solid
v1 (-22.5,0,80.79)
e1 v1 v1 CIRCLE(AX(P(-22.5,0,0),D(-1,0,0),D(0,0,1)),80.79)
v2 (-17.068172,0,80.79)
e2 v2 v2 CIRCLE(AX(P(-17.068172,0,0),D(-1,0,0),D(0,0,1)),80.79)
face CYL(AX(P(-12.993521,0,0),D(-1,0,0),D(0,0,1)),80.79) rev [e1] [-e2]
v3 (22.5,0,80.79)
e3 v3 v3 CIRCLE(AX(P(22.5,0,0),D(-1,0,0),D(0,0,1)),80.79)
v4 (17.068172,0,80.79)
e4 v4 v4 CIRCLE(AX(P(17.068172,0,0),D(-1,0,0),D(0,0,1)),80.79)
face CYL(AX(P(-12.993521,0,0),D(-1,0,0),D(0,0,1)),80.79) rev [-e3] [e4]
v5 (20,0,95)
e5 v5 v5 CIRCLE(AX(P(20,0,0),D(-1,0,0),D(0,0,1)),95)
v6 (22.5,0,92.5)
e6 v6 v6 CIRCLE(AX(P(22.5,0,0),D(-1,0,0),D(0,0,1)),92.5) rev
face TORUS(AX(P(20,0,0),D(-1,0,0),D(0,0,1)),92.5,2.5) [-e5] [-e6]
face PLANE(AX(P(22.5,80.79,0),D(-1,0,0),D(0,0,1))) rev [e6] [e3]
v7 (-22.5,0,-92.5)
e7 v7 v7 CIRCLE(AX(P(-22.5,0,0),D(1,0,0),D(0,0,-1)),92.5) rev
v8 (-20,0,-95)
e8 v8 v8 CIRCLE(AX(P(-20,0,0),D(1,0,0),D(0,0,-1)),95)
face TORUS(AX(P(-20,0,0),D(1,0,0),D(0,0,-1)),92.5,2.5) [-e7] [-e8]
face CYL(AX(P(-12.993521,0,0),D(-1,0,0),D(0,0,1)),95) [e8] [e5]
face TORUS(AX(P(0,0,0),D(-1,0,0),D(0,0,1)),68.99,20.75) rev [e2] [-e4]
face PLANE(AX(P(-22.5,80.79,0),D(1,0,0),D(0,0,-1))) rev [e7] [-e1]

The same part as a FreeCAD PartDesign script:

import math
import FreeCAD as App
import Part
import Sketcher

V = App.Vector


def edges_at(feature, points):
    """Names of the edges that pass closest to the given points."""
    edges = feature.Shape.Edges
    near = lambda p: min(range(len(edges)), key=lambda i: edges[i].distToShape(Part.Vertex(*p))[0])
    return sorted({f"Edge{near(p) + 1}" for p in points})

doc = App.newDocument("Part")
body = doc.addObject("PartDesign::Body", "Body")

# Sketch on XY plane
sketch1 = body.newObject("Sketcher::SketchObject", "Sketch")
sketch1.AttachmentSupport = (doc.getObject("XY_Plane"), [""])
sketch1.MapMode = "FlatFace"
sketch1.addGeometry([
    Part.LineSegment(V(17, 81, 0), V(22, 81, 0)),  # 0
    Part.LineSegment(V(22, 81, 0), V(22, 95, 0)),  # 1
    Part.LineSegment(V(22, 95, 0), V(-22, 95, 0)),  # 2
    Part.LineSegment(V(-22, 95, 0), V(-22, 81, 0)),  # 3
    Part.LineSegment(V(-22, 81, 0), V(-17, 81, 0)),  # 4
    Part.ArcOfCircle(Part.Circle(V(0, 69, 0), V(0, 0, 1), 21), math.radians(35), math.radians(145)),  # 5
], False)
sketch1.addConstraint([
    Sketcher.Constraint("Coincident", 0, 2, 1, 1),
    Sketcher.Constraint("Coincident", 1, 2, 2, 1),
    Sketcher.Constraint("Coincident", 2, 2, 3, 1),
    Sketcher.Constraint("Coincident", 3, 2, 4, 1),
    Sketcher.Constraint("Coincident", 4, 2, 5, 2),
    Sketcher.Constraint("Coincident", 5, 1, 0, 1),
    Sketcher.Constraint("Horizontal", 0),
    Sketcher.Constraint("Vertical", 1),
    Sketcher.Constraint("Horizontal", 2),
    Sketcher.Constraint("Vertical", 3),
    Sketcher.Constraint("Horizontal", 4),
    Sketcher.Constraint("Symmetric", 0, 2, 3, 2, -2),
    Sketcher.Constraint("PointOnObject", 5, 3, -2),
    Sketcher.Constraint("DistanceX", 2, 2, 2, 1, 45.0),
    Sketcher.Constraint("Radius", 5, 20.75),
    Sketcher.Constraint("DistanceY", -1, 1, 1, 2, 95.0),
    Sketcher.Constraint("DistanceY", 1, 1, 1, 2, 14.21),
    Sketcher.Constraint("DistanceY", 5, 3, 0, 2, 11.8),
])
revolution = body.newObject("PartDesign::Revolution", "Revolution")
revolution.Profile = sketch1
revolution.ReferenceAxis = (sketch1, ["H_Axis"])
revolution.Angle = 360
doc.recompute()

fillet = body.newObject("PartDesign::Fillet", "Fillet")
fillet.Base = (revolution, edges_at(revolution, [(22.5, 0, -95), (-22.5, 0, -95)]))
fillet.Radius = 2.5

doc.recompute()
